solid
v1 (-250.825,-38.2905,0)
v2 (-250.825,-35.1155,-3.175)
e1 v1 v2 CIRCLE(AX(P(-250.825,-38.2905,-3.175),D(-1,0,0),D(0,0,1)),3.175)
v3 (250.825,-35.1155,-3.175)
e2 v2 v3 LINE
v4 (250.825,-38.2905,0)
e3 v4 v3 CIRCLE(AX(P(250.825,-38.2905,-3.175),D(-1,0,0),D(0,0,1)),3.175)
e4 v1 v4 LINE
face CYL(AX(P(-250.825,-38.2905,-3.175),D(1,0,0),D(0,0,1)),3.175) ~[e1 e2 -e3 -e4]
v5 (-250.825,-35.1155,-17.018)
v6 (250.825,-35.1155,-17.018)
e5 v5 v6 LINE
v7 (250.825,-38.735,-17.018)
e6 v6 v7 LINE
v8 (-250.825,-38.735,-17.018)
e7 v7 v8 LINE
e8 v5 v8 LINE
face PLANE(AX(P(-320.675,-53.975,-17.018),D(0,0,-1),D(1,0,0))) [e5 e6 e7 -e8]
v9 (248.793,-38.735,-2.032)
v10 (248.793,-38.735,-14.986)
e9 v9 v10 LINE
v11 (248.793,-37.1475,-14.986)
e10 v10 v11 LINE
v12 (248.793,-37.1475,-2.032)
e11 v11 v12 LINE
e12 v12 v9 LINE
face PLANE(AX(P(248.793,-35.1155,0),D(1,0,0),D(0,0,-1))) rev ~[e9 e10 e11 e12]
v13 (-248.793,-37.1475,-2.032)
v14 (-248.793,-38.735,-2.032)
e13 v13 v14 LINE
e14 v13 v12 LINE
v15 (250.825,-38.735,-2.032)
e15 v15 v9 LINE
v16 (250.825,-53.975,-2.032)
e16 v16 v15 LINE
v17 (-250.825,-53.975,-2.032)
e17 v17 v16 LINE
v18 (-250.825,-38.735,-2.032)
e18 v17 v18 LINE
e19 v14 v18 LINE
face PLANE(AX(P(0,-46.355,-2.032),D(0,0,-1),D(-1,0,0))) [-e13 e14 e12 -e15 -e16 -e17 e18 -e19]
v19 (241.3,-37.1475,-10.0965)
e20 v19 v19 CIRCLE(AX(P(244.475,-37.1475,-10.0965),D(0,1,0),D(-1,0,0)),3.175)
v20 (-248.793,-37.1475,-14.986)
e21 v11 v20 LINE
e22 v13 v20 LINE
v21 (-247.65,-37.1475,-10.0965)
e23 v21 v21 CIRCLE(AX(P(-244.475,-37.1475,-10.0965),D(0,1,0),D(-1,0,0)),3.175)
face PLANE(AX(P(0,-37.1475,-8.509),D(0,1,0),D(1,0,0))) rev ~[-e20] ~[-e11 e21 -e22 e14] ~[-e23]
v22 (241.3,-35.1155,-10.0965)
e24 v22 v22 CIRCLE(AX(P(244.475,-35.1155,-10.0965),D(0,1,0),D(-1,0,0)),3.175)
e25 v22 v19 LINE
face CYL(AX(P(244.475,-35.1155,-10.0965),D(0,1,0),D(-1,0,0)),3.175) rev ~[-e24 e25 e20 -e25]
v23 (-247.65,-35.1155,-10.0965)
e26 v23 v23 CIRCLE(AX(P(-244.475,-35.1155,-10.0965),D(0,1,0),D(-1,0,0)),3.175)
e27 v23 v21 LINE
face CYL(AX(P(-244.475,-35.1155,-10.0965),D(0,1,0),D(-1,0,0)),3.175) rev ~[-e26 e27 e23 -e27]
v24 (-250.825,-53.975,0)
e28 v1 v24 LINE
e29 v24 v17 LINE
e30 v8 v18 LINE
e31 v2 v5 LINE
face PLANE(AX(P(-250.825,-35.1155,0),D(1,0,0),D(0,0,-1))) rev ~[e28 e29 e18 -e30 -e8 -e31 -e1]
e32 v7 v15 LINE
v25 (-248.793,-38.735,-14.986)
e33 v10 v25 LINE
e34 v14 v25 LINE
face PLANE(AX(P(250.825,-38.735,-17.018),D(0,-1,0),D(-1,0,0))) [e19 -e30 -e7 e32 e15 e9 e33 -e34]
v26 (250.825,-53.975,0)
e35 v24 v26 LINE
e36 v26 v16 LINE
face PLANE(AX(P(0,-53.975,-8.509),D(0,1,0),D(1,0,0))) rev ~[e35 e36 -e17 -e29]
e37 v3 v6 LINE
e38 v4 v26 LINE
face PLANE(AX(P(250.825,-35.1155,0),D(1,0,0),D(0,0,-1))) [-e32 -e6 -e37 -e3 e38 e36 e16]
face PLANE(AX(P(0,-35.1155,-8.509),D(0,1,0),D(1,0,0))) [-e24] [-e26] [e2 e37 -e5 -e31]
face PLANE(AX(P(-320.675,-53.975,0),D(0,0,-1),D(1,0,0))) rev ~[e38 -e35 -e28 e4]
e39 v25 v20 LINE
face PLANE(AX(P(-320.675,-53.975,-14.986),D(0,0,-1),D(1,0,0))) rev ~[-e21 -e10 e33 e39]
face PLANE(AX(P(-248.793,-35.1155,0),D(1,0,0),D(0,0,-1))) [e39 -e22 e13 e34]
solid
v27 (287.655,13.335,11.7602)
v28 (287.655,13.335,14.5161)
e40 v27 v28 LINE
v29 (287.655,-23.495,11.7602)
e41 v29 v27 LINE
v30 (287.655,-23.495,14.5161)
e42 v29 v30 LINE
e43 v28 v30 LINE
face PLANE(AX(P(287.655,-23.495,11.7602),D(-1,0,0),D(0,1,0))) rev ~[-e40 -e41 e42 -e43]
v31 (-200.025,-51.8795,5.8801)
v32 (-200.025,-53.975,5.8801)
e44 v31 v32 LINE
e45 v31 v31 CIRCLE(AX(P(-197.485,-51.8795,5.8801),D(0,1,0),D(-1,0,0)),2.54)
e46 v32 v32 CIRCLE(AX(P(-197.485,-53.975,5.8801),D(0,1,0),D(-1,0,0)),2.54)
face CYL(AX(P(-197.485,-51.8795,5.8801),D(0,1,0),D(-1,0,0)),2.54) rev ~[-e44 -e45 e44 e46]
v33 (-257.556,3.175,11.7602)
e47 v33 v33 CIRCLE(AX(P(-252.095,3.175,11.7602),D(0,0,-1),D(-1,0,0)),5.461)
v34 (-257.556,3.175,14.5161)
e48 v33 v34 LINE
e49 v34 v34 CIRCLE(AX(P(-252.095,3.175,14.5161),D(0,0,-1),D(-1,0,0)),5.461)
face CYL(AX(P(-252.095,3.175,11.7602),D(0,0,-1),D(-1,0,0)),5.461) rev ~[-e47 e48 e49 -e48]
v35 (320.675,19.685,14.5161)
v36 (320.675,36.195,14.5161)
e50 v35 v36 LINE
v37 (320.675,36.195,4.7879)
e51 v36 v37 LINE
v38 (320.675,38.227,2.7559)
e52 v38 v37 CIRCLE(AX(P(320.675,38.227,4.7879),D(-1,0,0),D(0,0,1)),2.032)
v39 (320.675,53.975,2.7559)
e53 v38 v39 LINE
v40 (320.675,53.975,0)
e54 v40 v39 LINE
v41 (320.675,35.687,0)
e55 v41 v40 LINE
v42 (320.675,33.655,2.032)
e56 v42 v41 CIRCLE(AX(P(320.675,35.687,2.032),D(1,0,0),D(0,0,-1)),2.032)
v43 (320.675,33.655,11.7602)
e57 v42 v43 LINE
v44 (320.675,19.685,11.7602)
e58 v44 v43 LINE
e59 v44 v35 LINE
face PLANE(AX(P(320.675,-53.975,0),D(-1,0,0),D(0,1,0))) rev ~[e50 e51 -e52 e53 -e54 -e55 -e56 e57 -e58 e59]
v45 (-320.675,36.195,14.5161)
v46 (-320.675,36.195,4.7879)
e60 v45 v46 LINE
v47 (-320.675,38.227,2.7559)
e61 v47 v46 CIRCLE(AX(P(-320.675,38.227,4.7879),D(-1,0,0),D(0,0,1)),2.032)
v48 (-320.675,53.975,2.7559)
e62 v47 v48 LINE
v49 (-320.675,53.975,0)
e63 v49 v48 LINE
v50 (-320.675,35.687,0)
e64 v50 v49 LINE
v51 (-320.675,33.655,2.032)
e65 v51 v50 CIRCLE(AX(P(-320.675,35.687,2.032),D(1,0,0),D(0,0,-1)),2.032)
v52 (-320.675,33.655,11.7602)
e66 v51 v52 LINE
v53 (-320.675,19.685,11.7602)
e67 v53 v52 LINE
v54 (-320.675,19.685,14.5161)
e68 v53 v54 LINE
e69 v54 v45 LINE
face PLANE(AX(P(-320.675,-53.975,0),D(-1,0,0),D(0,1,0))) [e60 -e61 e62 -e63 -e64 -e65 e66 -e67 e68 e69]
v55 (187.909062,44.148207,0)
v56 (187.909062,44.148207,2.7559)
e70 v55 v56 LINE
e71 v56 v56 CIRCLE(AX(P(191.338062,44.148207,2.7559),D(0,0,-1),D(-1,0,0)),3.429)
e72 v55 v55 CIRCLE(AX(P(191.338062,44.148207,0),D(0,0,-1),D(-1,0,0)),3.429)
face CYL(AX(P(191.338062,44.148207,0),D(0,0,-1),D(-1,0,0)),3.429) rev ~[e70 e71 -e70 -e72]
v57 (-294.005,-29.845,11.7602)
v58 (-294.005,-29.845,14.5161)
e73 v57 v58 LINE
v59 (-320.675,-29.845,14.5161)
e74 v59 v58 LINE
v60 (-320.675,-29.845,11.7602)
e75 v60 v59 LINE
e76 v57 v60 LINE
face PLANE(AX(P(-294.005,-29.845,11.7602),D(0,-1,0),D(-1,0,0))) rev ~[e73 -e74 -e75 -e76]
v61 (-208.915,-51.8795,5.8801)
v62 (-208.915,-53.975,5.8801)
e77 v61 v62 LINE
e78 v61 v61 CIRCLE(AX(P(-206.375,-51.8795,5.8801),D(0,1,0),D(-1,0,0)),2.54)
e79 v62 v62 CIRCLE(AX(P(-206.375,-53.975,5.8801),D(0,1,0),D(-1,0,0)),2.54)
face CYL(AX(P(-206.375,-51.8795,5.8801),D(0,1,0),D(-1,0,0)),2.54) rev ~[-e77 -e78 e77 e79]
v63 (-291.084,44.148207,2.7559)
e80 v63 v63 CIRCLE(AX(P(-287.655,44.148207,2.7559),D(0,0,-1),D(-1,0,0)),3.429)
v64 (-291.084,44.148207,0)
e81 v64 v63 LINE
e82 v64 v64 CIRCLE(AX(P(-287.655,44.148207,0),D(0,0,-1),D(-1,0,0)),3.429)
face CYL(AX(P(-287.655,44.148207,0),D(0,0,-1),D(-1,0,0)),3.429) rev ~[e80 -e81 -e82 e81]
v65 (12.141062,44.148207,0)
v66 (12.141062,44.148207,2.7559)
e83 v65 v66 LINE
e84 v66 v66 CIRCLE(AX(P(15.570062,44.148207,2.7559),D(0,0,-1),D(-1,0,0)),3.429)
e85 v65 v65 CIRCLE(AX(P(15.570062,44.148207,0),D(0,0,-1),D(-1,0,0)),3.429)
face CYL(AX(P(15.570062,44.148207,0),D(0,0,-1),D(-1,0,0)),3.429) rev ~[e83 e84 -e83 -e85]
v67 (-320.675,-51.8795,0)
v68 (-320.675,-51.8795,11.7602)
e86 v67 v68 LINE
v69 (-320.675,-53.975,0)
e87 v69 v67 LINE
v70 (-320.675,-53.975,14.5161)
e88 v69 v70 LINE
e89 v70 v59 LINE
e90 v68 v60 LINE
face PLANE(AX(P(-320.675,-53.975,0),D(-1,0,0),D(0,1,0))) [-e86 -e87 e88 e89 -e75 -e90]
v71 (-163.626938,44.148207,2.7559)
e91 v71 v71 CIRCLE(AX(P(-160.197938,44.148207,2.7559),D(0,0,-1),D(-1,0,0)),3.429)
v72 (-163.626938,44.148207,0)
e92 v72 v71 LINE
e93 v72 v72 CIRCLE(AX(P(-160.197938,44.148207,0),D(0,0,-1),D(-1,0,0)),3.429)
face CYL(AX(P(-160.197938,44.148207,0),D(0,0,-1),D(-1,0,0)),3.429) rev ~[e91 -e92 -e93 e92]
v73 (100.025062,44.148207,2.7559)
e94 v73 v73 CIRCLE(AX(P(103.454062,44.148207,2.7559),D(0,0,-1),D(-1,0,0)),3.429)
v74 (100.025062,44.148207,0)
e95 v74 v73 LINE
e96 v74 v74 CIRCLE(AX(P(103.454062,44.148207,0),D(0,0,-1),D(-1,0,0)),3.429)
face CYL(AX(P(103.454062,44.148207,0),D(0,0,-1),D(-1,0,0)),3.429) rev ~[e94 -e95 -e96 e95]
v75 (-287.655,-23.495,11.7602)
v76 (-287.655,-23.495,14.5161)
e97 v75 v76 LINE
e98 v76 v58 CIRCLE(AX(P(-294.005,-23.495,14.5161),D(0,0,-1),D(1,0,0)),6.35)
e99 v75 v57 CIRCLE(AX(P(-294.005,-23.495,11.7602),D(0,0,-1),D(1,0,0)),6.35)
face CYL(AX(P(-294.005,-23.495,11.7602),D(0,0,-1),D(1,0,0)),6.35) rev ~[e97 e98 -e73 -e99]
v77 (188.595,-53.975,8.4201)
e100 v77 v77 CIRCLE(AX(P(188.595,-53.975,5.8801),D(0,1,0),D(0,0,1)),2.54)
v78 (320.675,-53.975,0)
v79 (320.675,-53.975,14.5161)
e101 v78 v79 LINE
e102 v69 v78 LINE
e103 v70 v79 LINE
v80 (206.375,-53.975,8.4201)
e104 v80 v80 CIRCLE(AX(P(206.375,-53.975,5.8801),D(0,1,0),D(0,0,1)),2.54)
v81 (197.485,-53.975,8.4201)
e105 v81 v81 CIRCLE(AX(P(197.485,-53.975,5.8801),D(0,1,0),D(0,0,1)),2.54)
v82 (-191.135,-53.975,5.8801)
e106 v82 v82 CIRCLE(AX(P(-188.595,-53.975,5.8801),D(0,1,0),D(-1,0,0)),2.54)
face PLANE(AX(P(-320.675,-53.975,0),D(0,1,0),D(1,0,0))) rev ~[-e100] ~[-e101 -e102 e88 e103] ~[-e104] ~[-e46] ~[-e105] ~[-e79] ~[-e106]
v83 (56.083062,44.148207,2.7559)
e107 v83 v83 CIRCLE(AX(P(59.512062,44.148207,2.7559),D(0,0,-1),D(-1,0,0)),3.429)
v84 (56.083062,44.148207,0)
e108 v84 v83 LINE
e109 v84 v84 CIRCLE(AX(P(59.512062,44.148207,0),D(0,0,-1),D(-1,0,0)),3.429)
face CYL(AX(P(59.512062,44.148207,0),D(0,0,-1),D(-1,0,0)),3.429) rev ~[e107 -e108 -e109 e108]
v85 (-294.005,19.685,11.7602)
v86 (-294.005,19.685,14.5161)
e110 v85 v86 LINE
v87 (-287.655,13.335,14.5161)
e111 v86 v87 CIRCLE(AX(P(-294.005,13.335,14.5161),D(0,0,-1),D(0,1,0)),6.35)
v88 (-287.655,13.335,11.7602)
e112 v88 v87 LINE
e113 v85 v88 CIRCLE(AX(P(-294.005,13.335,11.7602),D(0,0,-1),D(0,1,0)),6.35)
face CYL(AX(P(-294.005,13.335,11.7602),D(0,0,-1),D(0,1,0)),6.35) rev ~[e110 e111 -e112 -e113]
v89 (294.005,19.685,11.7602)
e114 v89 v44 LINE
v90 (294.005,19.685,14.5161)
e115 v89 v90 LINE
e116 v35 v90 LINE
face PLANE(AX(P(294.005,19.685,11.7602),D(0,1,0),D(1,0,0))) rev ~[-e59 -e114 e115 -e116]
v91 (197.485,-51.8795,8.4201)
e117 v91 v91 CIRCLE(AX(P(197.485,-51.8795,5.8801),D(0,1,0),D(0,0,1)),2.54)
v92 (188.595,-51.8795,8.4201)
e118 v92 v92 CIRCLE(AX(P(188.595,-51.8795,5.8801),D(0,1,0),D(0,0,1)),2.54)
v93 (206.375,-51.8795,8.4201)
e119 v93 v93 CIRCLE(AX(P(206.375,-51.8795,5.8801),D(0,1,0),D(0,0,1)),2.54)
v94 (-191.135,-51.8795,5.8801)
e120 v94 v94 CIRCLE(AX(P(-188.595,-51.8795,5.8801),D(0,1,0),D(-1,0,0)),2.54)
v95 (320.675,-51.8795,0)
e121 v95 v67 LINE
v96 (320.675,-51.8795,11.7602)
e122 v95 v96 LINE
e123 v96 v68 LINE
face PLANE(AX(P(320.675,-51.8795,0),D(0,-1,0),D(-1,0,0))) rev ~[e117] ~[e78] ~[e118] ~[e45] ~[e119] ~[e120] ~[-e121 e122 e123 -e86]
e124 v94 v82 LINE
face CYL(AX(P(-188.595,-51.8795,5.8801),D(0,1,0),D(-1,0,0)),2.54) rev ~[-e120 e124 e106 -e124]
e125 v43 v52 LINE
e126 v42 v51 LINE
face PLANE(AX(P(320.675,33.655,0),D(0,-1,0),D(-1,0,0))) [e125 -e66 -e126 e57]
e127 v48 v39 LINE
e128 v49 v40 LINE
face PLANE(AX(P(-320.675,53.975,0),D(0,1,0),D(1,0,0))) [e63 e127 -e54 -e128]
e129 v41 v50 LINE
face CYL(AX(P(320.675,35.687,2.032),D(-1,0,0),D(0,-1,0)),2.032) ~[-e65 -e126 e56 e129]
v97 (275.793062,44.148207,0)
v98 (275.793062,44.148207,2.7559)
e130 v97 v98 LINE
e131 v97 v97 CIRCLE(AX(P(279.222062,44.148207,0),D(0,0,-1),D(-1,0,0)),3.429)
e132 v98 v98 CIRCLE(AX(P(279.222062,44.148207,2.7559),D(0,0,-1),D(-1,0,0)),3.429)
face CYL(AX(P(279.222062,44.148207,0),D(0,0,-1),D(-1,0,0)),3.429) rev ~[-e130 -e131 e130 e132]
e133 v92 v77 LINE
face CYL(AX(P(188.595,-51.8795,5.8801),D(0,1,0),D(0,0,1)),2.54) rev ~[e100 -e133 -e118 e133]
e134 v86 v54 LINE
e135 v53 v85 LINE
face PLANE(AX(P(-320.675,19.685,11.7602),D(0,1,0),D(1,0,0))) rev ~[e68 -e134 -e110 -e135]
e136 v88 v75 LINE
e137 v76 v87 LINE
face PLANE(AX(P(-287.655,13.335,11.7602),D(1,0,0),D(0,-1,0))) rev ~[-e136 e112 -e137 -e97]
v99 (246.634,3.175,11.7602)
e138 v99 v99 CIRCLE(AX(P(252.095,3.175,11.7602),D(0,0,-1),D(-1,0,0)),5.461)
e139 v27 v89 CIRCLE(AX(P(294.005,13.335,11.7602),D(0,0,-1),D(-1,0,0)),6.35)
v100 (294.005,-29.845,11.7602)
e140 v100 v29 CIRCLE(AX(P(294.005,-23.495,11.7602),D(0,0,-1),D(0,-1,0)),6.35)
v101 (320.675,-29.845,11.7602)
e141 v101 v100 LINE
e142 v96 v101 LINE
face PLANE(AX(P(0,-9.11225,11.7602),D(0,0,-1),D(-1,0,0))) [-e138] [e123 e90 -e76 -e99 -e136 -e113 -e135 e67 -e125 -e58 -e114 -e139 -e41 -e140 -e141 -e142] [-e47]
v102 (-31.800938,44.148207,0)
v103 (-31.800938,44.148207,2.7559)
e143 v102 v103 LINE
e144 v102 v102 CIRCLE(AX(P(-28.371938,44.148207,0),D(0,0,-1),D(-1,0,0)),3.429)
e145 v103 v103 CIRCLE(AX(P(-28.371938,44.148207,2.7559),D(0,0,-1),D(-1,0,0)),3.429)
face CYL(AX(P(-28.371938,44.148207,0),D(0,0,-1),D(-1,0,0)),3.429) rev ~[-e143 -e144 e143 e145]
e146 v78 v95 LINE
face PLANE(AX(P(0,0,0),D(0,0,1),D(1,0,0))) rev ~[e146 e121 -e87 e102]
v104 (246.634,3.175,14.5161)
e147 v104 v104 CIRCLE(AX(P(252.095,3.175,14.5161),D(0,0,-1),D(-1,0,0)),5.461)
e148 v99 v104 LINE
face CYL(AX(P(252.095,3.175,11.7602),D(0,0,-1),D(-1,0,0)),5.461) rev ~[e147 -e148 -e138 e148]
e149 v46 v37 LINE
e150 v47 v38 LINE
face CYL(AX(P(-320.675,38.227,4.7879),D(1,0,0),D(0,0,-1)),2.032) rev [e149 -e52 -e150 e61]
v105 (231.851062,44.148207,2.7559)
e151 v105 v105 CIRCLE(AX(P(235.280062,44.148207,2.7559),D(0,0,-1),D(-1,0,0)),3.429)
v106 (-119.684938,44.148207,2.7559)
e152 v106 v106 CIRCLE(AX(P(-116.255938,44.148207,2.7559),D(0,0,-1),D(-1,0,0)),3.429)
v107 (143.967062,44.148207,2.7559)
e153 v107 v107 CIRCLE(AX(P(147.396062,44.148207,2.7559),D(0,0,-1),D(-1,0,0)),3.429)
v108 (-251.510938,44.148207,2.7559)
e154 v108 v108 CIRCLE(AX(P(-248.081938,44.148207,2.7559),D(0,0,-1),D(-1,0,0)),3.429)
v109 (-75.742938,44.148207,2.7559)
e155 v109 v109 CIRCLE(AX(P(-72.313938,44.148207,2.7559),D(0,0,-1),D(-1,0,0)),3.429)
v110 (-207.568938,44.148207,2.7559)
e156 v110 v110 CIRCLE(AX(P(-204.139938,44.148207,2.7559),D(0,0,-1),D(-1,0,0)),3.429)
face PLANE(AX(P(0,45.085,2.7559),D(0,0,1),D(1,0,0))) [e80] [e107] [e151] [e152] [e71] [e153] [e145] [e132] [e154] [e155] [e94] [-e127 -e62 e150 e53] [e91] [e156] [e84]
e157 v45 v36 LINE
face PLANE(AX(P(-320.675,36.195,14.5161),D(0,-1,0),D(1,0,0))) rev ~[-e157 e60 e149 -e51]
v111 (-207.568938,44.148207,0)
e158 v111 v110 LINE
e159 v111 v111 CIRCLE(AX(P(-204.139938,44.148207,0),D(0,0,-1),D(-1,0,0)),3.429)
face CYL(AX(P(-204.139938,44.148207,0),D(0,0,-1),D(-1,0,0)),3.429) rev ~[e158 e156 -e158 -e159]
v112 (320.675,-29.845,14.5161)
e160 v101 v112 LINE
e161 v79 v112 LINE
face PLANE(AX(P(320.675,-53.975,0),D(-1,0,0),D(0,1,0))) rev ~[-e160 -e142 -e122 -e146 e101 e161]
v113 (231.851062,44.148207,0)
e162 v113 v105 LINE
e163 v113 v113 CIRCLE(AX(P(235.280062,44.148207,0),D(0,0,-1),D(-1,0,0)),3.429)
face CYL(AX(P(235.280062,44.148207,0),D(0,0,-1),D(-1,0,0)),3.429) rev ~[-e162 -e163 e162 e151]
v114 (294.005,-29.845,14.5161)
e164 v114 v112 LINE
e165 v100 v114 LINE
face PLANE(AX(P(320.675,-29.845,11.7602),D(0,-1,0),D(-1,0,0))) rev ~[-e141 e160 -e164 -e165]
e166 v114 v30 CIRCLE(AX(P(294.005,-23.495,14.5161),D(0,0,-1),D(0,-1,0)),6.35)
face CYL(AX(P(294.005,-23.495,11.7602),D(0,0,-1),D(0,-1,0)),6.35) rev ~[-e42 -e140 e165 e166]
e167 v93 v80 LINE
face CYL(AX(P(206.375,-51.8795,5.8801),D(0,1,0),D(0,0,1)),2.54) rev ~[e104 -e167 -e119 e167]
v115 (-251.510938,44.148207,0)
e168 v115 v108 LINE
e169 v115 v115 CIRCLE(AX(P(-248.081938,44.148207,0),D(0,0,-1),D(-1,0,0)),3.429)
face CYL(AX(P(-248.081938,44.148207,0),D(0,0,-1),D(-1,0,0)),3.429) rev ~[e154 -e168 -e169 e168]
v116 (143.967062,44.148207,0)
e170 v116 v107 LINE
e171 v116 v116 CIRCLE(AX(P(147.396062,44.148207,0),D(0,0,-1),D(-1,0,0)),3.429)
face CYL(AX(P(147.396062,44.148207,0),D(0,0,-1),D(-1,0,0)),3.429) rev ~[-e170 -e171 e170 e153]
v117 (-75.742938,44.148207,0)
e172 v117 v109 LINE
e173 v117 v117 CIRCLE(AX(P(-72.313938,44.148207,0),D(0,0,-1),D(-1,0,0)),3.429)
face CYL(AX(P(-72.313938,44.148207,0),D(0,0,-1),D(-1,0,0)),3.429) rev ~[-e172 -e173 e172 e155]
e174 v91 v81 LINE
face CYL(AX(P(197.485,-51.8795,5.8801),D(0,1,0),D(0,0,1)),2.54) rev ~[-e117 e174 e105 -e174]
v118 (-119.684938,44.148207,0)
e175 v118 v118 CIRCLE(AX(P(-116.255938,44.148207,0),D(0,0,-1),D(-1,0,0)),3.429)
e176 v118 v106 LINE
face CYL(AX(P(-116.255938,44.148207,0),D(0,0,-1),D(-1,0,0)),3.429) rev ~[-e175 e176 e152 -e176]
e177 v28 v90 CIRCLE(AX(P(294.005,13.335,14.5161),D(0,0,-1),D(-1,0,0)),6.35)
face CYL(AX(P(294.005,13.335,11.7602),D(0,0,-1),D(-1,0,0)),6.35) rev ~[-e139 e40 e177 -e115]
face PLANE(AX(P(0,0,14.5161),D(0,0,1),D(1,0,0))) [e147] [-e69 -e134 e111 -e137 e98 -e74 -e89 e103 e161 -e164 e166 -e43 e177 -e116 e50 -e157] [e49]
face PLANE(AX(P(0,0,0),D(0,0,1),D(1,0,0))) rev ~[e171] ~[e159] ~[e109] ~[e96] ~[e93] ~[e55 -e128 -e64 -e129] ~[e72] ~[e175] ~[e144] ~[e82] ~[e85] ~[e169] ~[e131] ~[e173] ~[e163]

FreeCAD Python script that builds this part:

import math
import FreeCAD as App
import Part
import Sketcher
from FreeCAD import Vector
Q = App.Units.Quantity


def edges_at(feature, points):
    """Names of the edges that pass closest to the given points."""
    edges = feature.Shape.Edges
    near = lambda p: min(range(len(edges)), key=lambda i: edges[i].distToShape(Part.Vertex(*p))[0])
    return sorted({f"Edge{near(p) + 1}" for p in points})


def faces_at(feature, points):
    """Names of the faces that lie closest to the given points."""
    faces = feature.Shape.Faces
    near = lambda p: min(range(len(faces)), key=lambda i: faces[i].distToShape(Part.Vertex(*p))[0])
    return sorted({f"Face{near(p) + 1}" for p in points})


def add_polygon(sketch, points):
    """Adds a closed chain of lines whose ends are joined by coincident constraints."""
    first, n = sketch.GeometryCount, len(points)
    for a, b in zip(points, points[1:] + points[:1]):
        sketch.addGeometry(Part.LineSegment(App.Vector(*a, 0), App.Vector(*b, 0)), False)
    for i in range(n):
        sketch.addConstraint(Sketcher.Constraint("Coincident", first + i, 2, first + (i + 1) % n, 1))

doc = App.newDocument("Part")
params = doc.addObject("Spreadsheet::Sheet", "Params")
for row, (alias, value) in enumerate([
    ("sketch1_width", "25.25 in"),
    ("sketch1_height", "4.25 in"),
    ("pad1_length", "0.5715 in"),
    ("sketch2_height", "0.7 in"),
    ("sketch2_width", "25.25 in"),
    ("pocket1_length", "0.463 in"),
    ("sketch3_width", "25.25 in"),
    ("pocket2_length", "0.463 in"),
    ("fillet_radius", "0.08 in"),
    ("sketch4_radius", "0.25 in"),
    ("sketch4_width", "1.05 in"),
    ("sketch4_height", "1.95 in"),
    ("sketch5_diameter", "0.27 in"),
    ("pocket4_length", "0.463 in"),
    ("sketch6_diameter", "0.43 in"),
    ("pocket5_length", "0.463 in"),
    ("sketch7_diameter", "0.2 in"),
    ("pocket6_length", "0.1 in"),
    ("sketch8_width", "25.25 in"),
    ("sketch8_height", "0.67 in"),
    ("pad2_length", "0.66 in"),
    ("pad2_length2", "0.0825 in"),
    ("sketch9_width", "2.75 in"),
    ("sketch9_height", "0.67 in"),
    ("thickness_wall", "0.08 in"),
    ("sketch10_height", "0.6 in"),
    ("sketch10_width", "19.75 in"),
    ("pocket8_length", "0.59 in"),
    ("fillet2_radius", "0.125 in"),
    ("sketch11_diameter", "0.25 in"),
    ("pocket9_length", "0.66 in"),
], start=1):
    params.set(f"A{row}", alias)
    params.set(f"B{row}", "=" + value)
    params.setAlias(f"B{row}", alias)

body = doc.addObject("PartDesign::Body", "Body")

# Sketch on XY plane
sketch1 = body.newObject("Sketcher::SketchObject", "Sketch")
sketch1.AttachmentSupport = (doc.getObject("XY_Plane"), [""])
sketch1.MapMode = "FlatFace"
add_polygon(sketch1, [(-320.675, 53.975), (-320.675, -53.975), (320.675, -53.975), (320.675, 53.975)])  # lines 0-3
sketch1.addConstraint(Sketcher.Constraint("Vertical", 0))
sketch1.addConstraint(Sketcher.Constraint("Horizontal", 1))
sketch1.addConstraint(Sketcher.Constraint("Vertical", 2))
sketch1.addConstraint(Sketcher.Constraint("Horizontal", 3))
sketch1.addConstraint(Sketcher.Constraint("Symmetric", 0, 2, 2, 2, -1, 1))
sketch1.addConstraint(Sketcher.Constraint("DistanceX", 1, 1, 1, 2, Q("25.25 in")))
sketch1.addConstraint(Sketcher.Constraint("DistanceY", 0, 2, 0, 1, Q("4.25 in")))
sketch1.setExpression("Constraints[9]", "Params.sketch1_width")
sketch1.setExpression("Constraints[10]", "Params.sketch1_height")
pad1 = body.newObject("PartDesign::Pad", "Pad")
pad1.Profile = sketch1
pad1.setExpression("Length", "Params.pad1_length")

# Sketch on XY plane
sketch2 = body.newObject("Sketcher::SketchObject", "Sketch001")
sketch2.AttachmentSupport = (doc.getObject("XY_Plane"), [""])
sketch2.MapMode = "FlatFace"
sketch2.AttachmentOffset = App.Placement(Vector(0, 0, 0.5715 * 25.4), App.Rotation())
add_polygon(sketch2, [(-320.675, 53.975), (-320.675, 36.195), (320.675, 36.195), (320.675, 53.975)])  # lines 0-3
sketch2.addConstraint(Sketcher.Constraint("Vertical", 0))
sketch2.addConstraint(Sketcher.Constraint("Horizontal", 1))
sketch2.addConstraint(Sketcher.Constraint("Vertical", 2))
sketch2.addConstraint(Sketcher.Constraint("Horizontal", 3))
sketch2.addConstraint(Sketcher.Constraint("DistanceY", 0, 2, 0, 1, Q("0.7 in")))
sketch2.addConstraint(Sketcher.Constraint("DistanceX", 1, 1, 1, 2, Q("25.25 in")))
sketch2.addConstraint(Sketcher.Constraint("DistanceX", 0, 2, -1, 1, Q("12.625 in")))
sketch2.addConstraint(Sketcher.Constraint("DistanceY", -1, 1, 0, 2, Q("1.425 in")))
sketch2.setExpression("Constraints[8]", "Params.sketch2_height")
sketch2.setExpression("Constraints[9]", "Params.sketch2_width")
pocket1 = body.newObject("PartDesign::Pocket", "Pocket")
pocket1.Profile = sketch2
pocket1.setExpression("Length", "Params.pocket1_length")

# Sketch on XY plane
sketch3 = body.newObject("Sketcher::SketchObject", "Sketch002")
sketch3.AttachmentSupport = (doc.getObject("XY_Plane"), [""])
sketch3.MapMode = "FlatFace"
add_polygon(sketch3, [(320.675, 33.655), (320.675, -51.8795), (-320.675, -51.8795), (-320.675, 33.655)])  # lines 0-3
sketch3.addConstraint(Sketcher.Constraint("Vertical", 0))
sketch3.addConstraint(Sketcher.Constraint("Horizontal", 1))
sketch3.addConstraint(Sketcher.Constraint("Vertical", 2))
sketch3.addConstraint(Sketcher.Constraint("Horizontal", 3))
sketch3.addConstraint(Sketcher.Constraint("DistanceX", 1, 2, 1, 1, Q("25.25 in")))
sketch3.addConstraint(Sketcher.Constraint("DistanceY", 0, 2, 0, 1, Q("3.3675 in")))
sketch3.addConstraint(Sketcher.Constraint("DistanceX", -1, 1, 0, 2, Q("12.625 in")))
sketch3.addConstraint(Sketcher.Constraint("DistanceY", -1, 1, 2, 2, Q("1.325 in")))
sketch3.setExpression("Constraints[8]", "Params.sketch3_width")
pocket2 = body.newObject("PartDesign::Pocket", "Pocket001")
pocket2.Profile = sketch3
pocket2.setExpression("Length", "Params.pocket2_length")
pocket2.Reversed = True
doc.recompute()

fillet = body.newObject("PartDesign::Fillet", "Fillet")
fillet.Base = (pocket2, edges_at(pocket2, [(0, 36.195, 2.756), (0, 33.655, 0)]))
fillet.setExpression("Radius", "Params.fillet_radius")

# Sketch on XY plane
sketch4 = body.newObject("Sketcher::SketchObject", "Sketch003")
sketch4.AttachmentSupport = (doc.getObject("XY_Plane"), [""])
sketch4.MapMode = "FlatFace"
sketch4.AttachmentOffset = App.Placement(Vector(0, 0, 0.463 * 25.4), App.Rotation())
sketch4.addGeometry(Part.LineSegment(Vector(294.005, 19.685, 0), Vector(320.675, 19.685, 0)), False)
sketch4.addGeometry(Part.LineSegment(Vector(320.675, 19.685, 0), Vector(320.675, -29.845, 0)), False)
sketch4.addGeometry(Part.LineSegment(Vector(320.675, -29.845, 0), Vector(294.005, -29.845, 0)), False)
sketch4.addGeometry(Part.ArcOfCircle(Part.Circle(Vector(294.005, -23.495, 0), Vector(0, 0, 1), 6.35), math.radians(180), math.radians(270)), False)
sketch4.addGeometry(Part.LineSegment(Vector(287.655, -23.495, 0), Vector(287.655, 13.335, 0)), False)
sketch4.addGeometry(Part.ArcOfCircle(Part.Circle(Vector(294.005, 13.335, 0), Vector(0, 0, 1), 6.35), math.radians(90), math.radians(180)), False)
sketch4.addGeometry(Part.LineSegment(Vector(-294.005, -29.845, 0), Vector(-320.675, -29.845, 0)), False)
sketch4.addGeometry(Part.LineSegment(Vector(-320.675, -29.845, 0), Vector(-320.675, 19.685, 0)), False)
sketch4.addGeometry(Part.LineSegment(Vector(-320.675, 19.685, 0), Vector(-294.005, 19.685, 0)), False)
sketch4.addGeometry(Part.ArcOfCircle(Part.Circle(Vector(-294.005, 13.335, 0), Vector(0, 0, 1), 6.35), math.radians(0), math.radians(90)), False)
sketch4.addGeometry(Part.LineSegment(Vector(-287.655, 13.335, 0), Vector(-287.655, -23.495, 0)), False)
sketch4.addGeometry(Part.ArcOfCircle(Part.Circle(Vector(-294.005, -23.495, 0), Vector(0, 0, 1), 6.35), math.radians(-90), math.radians(0)), False)
sketch4.addConstraint(Sketcher.Constraint("Coincident", 0, 2, 1, 1))
sketch4.addConstraint(Sketcher.Constraint("Coincident", 1, 2, 2, 1))
sketch4.addConstraint(Sketcher.Constraint("Tangent", 2, 2, 3, 2))
sketch4.addConstraint(Sketcher.Constraint("Tangent", 3, 1, 4, 1))
sketch4.addConstraint(Sketcher.Constraint("Tangent", 4, 2, 5, 2))
sketch4.addConstraint(Sketcher.Constraint("Tangent", 5, 1, 0, 1))
sketch4.addConstraint(Sketcher.Constraint("Coincident", 6, 2, 7, 1))
sketch4.addConstraint(Sketcher.Constraint("Coincident", 7, 2, 8, 1))
sketch4.addConstraint(Sketcher.Constraint("Tangent", 8, 2, 9, 2))
sketch4.addConstraint(Sketcher.Constraint("Tangent", 9, 1, 10, 1))
sketch4.addConstraint(Sketcher.Constraint("Tangent", 10, 2, 11, 2))
sketch4.addConstraint(Sketcher.Constraint("Tangent", 11, 1, 6, 1))
sketch4.addConstraint(Sketcher.Constraint("Horizontal", 0))
sketch4.addConstraint(Sketcher.Constraint("Vertical", 1))
sketch4.addConstraint(Sketcher.Constraint("Horizontal", 2))
sketch4.addConstraint(Sketcher.Constraint("Vertical", 4))
sketch4.addConstraint(Sketcher.Constraint("Horizontal", 6))
sketch4.addConstraint(Sketcher.Constraint("Vertical", 7))
sketch4.addConstraint(Sketcher.Constraint("Horizontal", 8))
sketch4.addConstraint(Sketcher.Constraint("Vertical", 10))
sketch4.addConstraint(Sketcher.Constraint("Equal", 3, 5))
sketch4.addConstraint(Sketcher.Constraint("Equal", 5, 9))
sketch4.addConstraint(Sketcher.Constraint("Equal", 9, 11))
sketch4.addConstraint(Sketcher.Constraint("Symmetric", 5, 3, 9, 3, -2))
sketch4.addConstraint(Sketcher.Constraint("Symmetric", 1, 2, 6, 2, -2))
sketch4.addConstraint(Sketcher.Constraint("Radius", 3, Q("0.25 in")))
sketch4.addConstraint(Sketcher.Constraint("DistanceX", 0, 1, 0, 2, Q("1.05 in")))
sketch4.addConstraint(Sketcher.Constraint("DistanceY", 1, 2, 1, 1, Q("1.95 in")))
sketch4.addConstraint(Sketcher.Constraint("DistanceX", 9, 3, 0, 2, Q("24.2 in")))
sketch4.addConstraint(Sketcher.Constraint("DistanceY", 3, 3, -1, 1, Q("0.925 in")))
sketch4.setExpression("Constraints[25]", "Params.sketch4_radius")
sketch4.setExpression("Constraints[26]", "Params.sketch4_width")
sketch4.setExpression("Constraints[27]", "Params.sketch4_height")
pocket3 = body.newObject("PartDesign::Pocket", "Pocket002")
pocket3.Profile = sketch4
pocket3.Type = "ThroughAll"
pocket3.Reversed = True

# Sketch on XY plane
sketch5 = body.newObject("Sketcher::SketchObject", "Sketch004")
sketch5.AttachmentSupport = (doc.getObject("XY_Plane"), [""])
sketch5.MapMode = "FlatFace"
sketch5.addGeometry(Part.Circle(Vector(279.222062, 44.148207, 0), Vector(0, 0, 1), 3.429), False)
sketch5.addGeometry(Part.Circle(Vector(235.280062, 44.148207, 0), Vector(0, 0, 1), 3.429), False)
sketch5.addGeometry(Part.Circle(Vector(191.338062, 44.148207, 0), Vector(0, 0, 1), 3.429), False)
sketch5.addGeometry(Part.Circle(Vector(147.396062, 44.148207, 0), Vector(0, 0, 1), 3.429), False)
sketch5.addGeometry(Part.Circle(Vector(103.454062, 44.148207, 0), Vector(0, 0, 1), 3.429), False)
sketch5.addGeometry(Part.Circle(Vector(59.512062, 44.148207, 0), Vector(0, 0, 1), 3.429), False)
sketch5.addGeometry(Part.Circle(Vector(15.570062, 44.148207, 0), Vector(0, 0, 1), 3.429), False)
sketch5.addGeometry(Part.Circle(Vector(-28.371938, 44.148207, 0), Vector(0, 0, 1), 3.429), False)
sketch5.addGeometry(Part.Circle(Vector(-72.313938, 44.148207, 0), Vector(0, 0, 1), 3.429), False)
sketch5.addGeometry(Part.Circle(Vector(-116.255938, 44.148207, 0), Vector(0, 0, 1), 3.429), False)
sketch5.addGeometry(Part.Circle(Vector(-160.197938, 44.148207, 0), Vector(0, 0, 1), 3.429), False)
sketch5.addGeometry(Part.Circle(Vector(-204.139938, 44.148207, 0), Vector(0, 0, 1), 3.429), False)
sketch5.addGeometry(Part.Circle(Vector(-248.081938, 44.148207, 0), Vector(0, 0, 1), 3.429), False)
sketch5.addGeometry(Part.Circle(Vector(-287.655, 44.148207, 0), Vector(0, 0, 1), 3.429), False)
sketch5.addConstraint(Sketcher.Constraint("Equal", 0, 1))
sketch5.addConstraint(Sketcher.Constraint("Equal", 1, 2))
sketch5.addConstraint(Sketcher.Constraint("Equal", 2, 3))
sketch5.addConstraint(Sketcher.Constraint("Equal", 3, 4))
sketch5.addConstraint(Sketcher.Constraint("Equal", 4, 5))
sketch5.addConstraint(Sketcher.Constraint("Equal", 5, 6))
sketch5.addConstraint(Sketcher.Constraint("Equal", 6, 7))
sketch5.addConstraint(Sketcher.Constraint("Equal", 7, 8))
sketch5.addConstraint(Sketcher.Constraint("Equal", 8, 9))
sketch5.addConstraint(Sketcher.Constraint("Equal", 9, 10))
sketch5.addConstraint(Sketcher.Constraint("Equal", 10, 11))
sketch5.addConstraint(Sketcher.Constraint("Equal", 11, 12))
sketch5.addConstraint(Sketcher.Constraint("Equal", 12, 13))
sketch5.addConstraint(Sketcher.Constraint("Horizontal", 0, 3, 1, 3))
sketch5.addConstraint(Sketcher.Constraint("Horizontal", 1, 3, 2, 3))
sketch5.addConstraint(Sketcher.Constraint("Horizontal", 2, 3, 3, 3))
sketch5.addConstraint(Sketcher.Constraint("Horizontal", 3, 3, 4, 3))
sketch5.addConstraint(Sketcher.Constraint("Horizontal", 4, 3, 5, 3))
sketch5.addConstraint(Sketcher.Constraint("Horizontal", 5, 3, 6, 3))
sketch5.addConstraint(Sketcher.Constraint("Horizontal", 6, 3, 7, 3))
sketch5.addConstraint(Sketcher.Constraint("Horizontal", 7, 3, 8, 3))
sketch5.addConstraint(Sketcher.Constraint("Horizontal", 8, 3, 9, 3))
sketch5.addConstraint(Sketcher.Constraint("Horizontal", 9, 3, 10, 3))
sketch5.addConstraint(Sketcher.Constraint("Horizontal", 10, 3, 11, 3))
sketch5.addConstraint(Sketcher.Constraint("Horizontal", 11, 3, 12, 3))
sketch5.addConstraint(Sketcher.Constraint("Horizontal", 12, 3, 13, 3))
sketch5.addConstraint(Sketcher.Constraint("Diameter", 0, Q("0.27 in")))
sketch5.addConstraint(Sketcher.Constraint("DistanceX", 1, 3, 0, 3, Q("1.73 in")))
sketch5.addConstraint(Sketcher.Constraint("DistanceX", 2, 3, 1, 3, Q("1.73 in")))
sketch5.addConstraint(Sketcher.Constraint("DistanceX", 3, 3, 2, 3, Q("1.73 in")))
sketch5.addConstraint(Sketcher.Constraint("DistanceX", 4, 3, 3, 3, Q("1.73 in")))
sketch5.addConstraint(Sketcher.Constraint("DistanceX", 5, 3, 4, 3, Q("1.73 in")))
sketch5.addConstraint(Sketcher.Constraint("DistanceX", 6, 3, 5, 3, Q("1.73 in")))
sketch5.addConstraint(Sketcher.Constraint("DistanceX", 7, 3, 6, 3, Q("1.73 in")))
sketch5.addConstraint(Sketcher.Constraint("DistanceX", 8, 3, 7, 3, Q("1.73 in")))
sketch5.addConstraint(Sketcher.Constraint("DistanceX", 9, 3, 8, 3, Q("1.73 in")))
sketch5.addConstraint(Sketcher.Constraint("DistanceX", 10, 3, 9, 3, Q("1.73 in")))
sketch5.addConstraint(Sketcher.Constraint("DistanceX", 11, 3, 10, 3, Q("1.73 in")))
sketch5.addConstraint(Sketcher.Constraint("DistanceX", 12, 3, 11, 3, Q("1.73 in")))
sketch5.addConstraint(Sketcher.Constraint("DistanceX", 13, 3, -1, 1, Q("11.325 in")))
sketch5.addConstraint(Sketcher.Constraint("DistanceX", -1, 1, 0, 3, 279.222062))
sketch5.addConstraint(Sketcher.Constraint("DistanceY", -1, 1, 0, 3, 44.148207))
sketch5.setExpression("Constraints[26]", "Params.sketch5_diameter")
pocket4 = body.newObject("PartDesign::Pocket", "Pocket003")
pocket4.Profile = sketch5
pocket4.setExpression("Length", "Params.pocket4_length")
pocket4.Reversed = True

# Sketch on XY plane
sketch6 = body.newObject("Sketcher::SketchObject", "Sketch005")
sketch6.AttachmentSupport = (doc.getObject("XY_Plane"), [""])
sketch6.MapMode = "FlatFace"
sketch6.AttachmentOffset = App.Placement(Vector(0, 0, 0.463 * 25.4), App.Rotation())
sketch6.addGeometry(Part.Circle(Vector(252.095, 3.175, 0), Vector(0, 0, 1), 5.461), False)
sketch6.addGeometry(Part.Circle(Vector(-252.095, 3.175, 0), Vector(0, 0, 1), 5.461), False)
sketch6.addConstraint(Sketcher.Constraint("Equal", 0, 1))
sketch6.addConstraint(Sketcher.Constraint("Symmetric", 0, 3, 1, 3, -2))
sketch6.addConstraint(Sketcher.Constraint("Diameter", 0, Q("0.43 in")))
sketch6.addConstraint(Sketcher.Constraint("DistanceX", 1, 3, 0, 3, Q("19.85 in")))
sketch6.addConstraint(Sketcher.Constraint("DistanceY", -1, 1, 0, 3, Q("0.125 in")))
sketch6.setExpression("Constraints[2]", "Params.sketch6_diameter")
pocket5 = body.newObject("PartDesign::Pocket", "Pocket004")
pocket5.Profile = sketch6
pocket5.setExpression("Length", "Params.pocket5_length")
pocket5.Reversed = True

# Sketch on XZ plane
sketch7 = body.newObject("Sketcher::SketchObject", "Sketch006")
sketch7.AttachmentSupport = (doc.getObject("XZ_Plane"), [""])
sketch7.MapMode = "FlatFace"
sketch7.AttachmentOffset = App.Placement(Vector(0, 0, 2.0425 * 25.4), App.Rotation())
sketch7.addGeometry(Part.Circle(Vector(-206.375, 5.8801, 0), Vector(0, 0, 1), 2.54), False)
sketch7.addGeometry(Part.Circle(Vector(-197.485, 5.8801, 0), Vector(0, 0, 1), 2.54), False)
sketch7.addGeometry(Part.Circle(Vector(-188.595, 5.8801, 0), Vector(0, 0, 1), 2.54), False)
sketch7.addGeometry(Part.Circle(Vector(197.485, 5.8801, 0), Vector(0, 0, 1), 2.54), False)
sketch7.addGeometry(Part.Circle(Vector(188.595, 5.8801, 0), Vector(0, 0, 1), 2.54), False)
sketch7.addGeometry(Part.Circle(Vector(206.375, 5.8801, 0), Vector(0, 0, 1), 2.54), False)
sketch7.addConstraint(Sketcher.Constraint("Equal", 0, 1))
sketch7.addConstraint(Sketcher.Constraint("Equal", 1, 2))
sketch7.addConstraint(Sketcher.Constraint("Equal", 2, 3))
sketch7.addConstraint(Sketcher.Constraint("Equal", 3, 4))
sketch7.addConstraint(Sketcher.Constraint("Equal", 4, 5))
sketch7.addConstraint(Sketcher.Constraint("Symmetric", 1, 3, 3, 3, -2))
sketch7.addConstraint(Sketcher.Constraint("Symmetric", 2, 3, 4, 3, -2))
sketch7.addConstraint(Sketcher.Constraint("Symmetric", 0, 3, 5, 3, -2))
sketch7.addConstraint(Sketcher.Constraint("Horizontal", 0, 3, 1, 3))
sketch7.addConstraint(Sketcher.Constraint("Horizontal", 1, 3, 2, 3))
sketch7.addConstraint(Sketcher.Constraint("Diameter", 0, Q("0.2 in")))
sketch7.addConstraint(Sketcher.Constraint("DistanceX", 0, 3, 2, 3, Q("0.7 in")))
sketch7.addConstraint(Sketcher.Constraint("DistanceX", 2, 3, 3, 3, Q("15.2 in")))
sketch7.addConstraint(Sketcher.Constraint("DistanceX", 0, 3, 1, 3, Q("0.35 in")))
sketch7.addConstraint(Sketcher.Constraint("DistanceY", -1, 1, 0, 3, Q("0.2315 in")))
sketch7.setExpression("Constraints[10]", "Params.sketch7_diameter")
pocket6 = body.newObject("PartDesign::Pocket", "Pocket005")
pocket6.Profile = sketch7
pocket6.setExpression("Length", "Params.pocket6_length")
pocket6.Reversed = True
body2 = doc.addObject("PartDesign::Body", "Body001")

# Sketch on XZ plane
sketch8 = body2.newObject("Sketcher::SketchObject", "Sketch007")
sketch8.AttachmentSupport = (doc.getObject("XZ_Plane001"), [""])
sketch8.MapMode = "FlatFace"
sketch8.AttachmentOffset = App.Placement(Vector(0, 0, 2.0425 * 25.4), App.Rotation())
add_polygon(sketch8, [(-320.675, -17.018), (-320.675, 0), (320.675, 0), (320.675, -17.018)])  # lines 0-3
sketch8.addConstraint(Sketcher.Constraint("Vertical", 0))
sketch8.addConstraint(Sketcher.Constraint("Horizontal", 1))
sketch8.addConstraint(Sketcher.Constraint("Vertical", 2))
sketch8.addConstraint(Sketcher.Constraint("Horizontal", 3))
sketch8.addConstraint(Sketcher.Constraint("Symmetric", 0, 2, 1, 2, -1, 1))
sketch8.addConstraint(Sketcher.Constraint("DistanceX", 1, 1, 1, 2, Q("25.25 in")))
sketch8.addConstraint(Sketcher.Constraint("DistanceY", 0, 1, 0, 2, Q("0.67 in")))
sketch8.setExpression("Constraints[9]", "Params.sketch8_width")
sketch8.setExpression("Constraints[10]", "Params.sketch8_height")
pad2 = body2.newObject("PartDesign::Pad", "Pad001")
pad2.Profile = sketch8
pad2.Type = "TwoLengths"
pad2.setExpression("Length", "Params.pad2_length")
pad2.setExpression("Length2", "Params.pad2_length2")
pad2.Reversed = True

# Sketch on XZ plane
sketch9 = body2.newObject("Sketcher::SketchObject", "Sketch008")
sketch9.AttachmentSupport = (doc.getObject("XZ_Plane001"), [""])
sketch9.MapMode = "FlatFace"
sketch9.AttachmentOffset = App.Placement(Vector(0, 0, 1.3825 * 25.4), App.Rotation())
add_polygon(sketch9, [(250.825, -17.018), (250.825, 0), (320.675, 0), (320.675, -17.018)])  # lines 0-3
add_polygon(sketch9, [(-320.675, -17.018), (-320.675, 0), (-250.825, 0), (-250.825, -17.018)])  # lines 4-7
sketch9.addConstraint(Sketcher.Constraint("Vertical", 0))
sketch9.addConstraint(Sketcher.Constraint("Horizontal", 1))
sketch9.addConstraint(Sketcher.Constraint("Vertical", 2))
sketch9.addConstraint(Sketcher.Constraint("Horizontal", 3))
sketch9.addConstraint(Sketcher.Constraint("Vertical", 4))
sketch9.addConstraint(Sketcher.Constraint("Horizontal", 5))
sketch9.addConstraint(Sketcher.Constraint("Vertical", 6))
sketch9.addConstraint(Sketcher.Constraint("Horizontal", 7))
sketch9.addConstraint(Sketcher.Constraint("Symmetric", 1, 2, 4, 2, -1, 1))
sketch9.addConstraint(Sketcher.Constraint("Symmetric", 0, 2, 5, 2, -2))
sketch9.addConstraint(Sketcher.Constraint("Horizontal", 3, 2, 6, 2))
sketch9.addConstraint(Sketcher.Constraint("DistanceX", 1, 1, 1, 2, Q("2.75 in")))
sketch9.addConstraint(Sketcher.Constraint("DistanceY", 0, 1, 0, 2, Q("0.67 in")))
sketch9.addConstraint(Sketcher.Constraint("DistanceX", 4, 2, 0, 2, Q("22.5 in")))
sketch9.setExpression("Constraints[19]", "Params.sketch9_width")
sketch9.setExpression("Constraints[20]", "Params.sketch9_height")
pocket7 = body2.newObject("PartDesign::Pocket", "Pocket006")
pocket7.Profile = sketch9
pocket7.Type = "ThroughAll"
pocket7.Reversed = True
doc.recompute()

thickness = body2.newObject("PartDesign::Thickness", "Thickness")
thickness.Base = (pocket7, faces_at(pocket7, [(0, -53.975, -8.509)]))
thickness.setExpression("Value", "Params.thickness_wall")
thickness.Reversed = True
thickness.Join = "Intersection"

# Sketch on XY plane
sketch10 = body2.newObject("Sketcher::SketchObject", "Sketch009")
sketch10.AttachmentSupport = (doc.getObject("XY_Plane001"), [""])
sketch10.MapMode = "FlatFace"
sketch10.AttachmentOffset = App.Placement(Vector(0, 0, -0.67 * 25.4), App.Rotation())
add_polygon(sketch10, [(250.825, -38.735), (250.825, -53.975), (-250.825, -53.975), (-250.825, -38.735)])  # lines 0-3
sketch10.addConstraint(Sketcher.Constraint("Vertical", 0))
sketch10.addConstraint(Sketcher.Constraint("Horizontal", 1))
sketch10.addConstraint(Sketcher.Constraint("Vertical", 2))
sketch10.addConstraint(Sketcher.Constraint("Horizontal", 3))
sketch10.addConstraint(Sketcher.Constraint("DistanceY", 0, 2, 0, 1, Q("0.6 in")))
sketch10.addConstraint(Sketcher.Constraint("DistanceX", 1, 2, 1, 1, Q("19.75 in")))
sketch10.addConstraint(Sketcher.Constraint("DistanceX", -1, 1, 0, 2, Q("9.875 in")))
sketch10.addConstraint(Sketcher.Constraint("DistanceY", 0, 2, -1, 1, Q("2.125 in")))
sketch10.setExpression("Constraints[8]", "Params.sketch10_height")
sketch10.setExpression("Constraints[9]", "Params.sketch10_width")
pocket8 = body2.newObject("PartDesign::Pocket", "Pocket007")
pocket8.Profile = sketch10
pocket8.setExpression("Length", "Params.pocket8_length")
pocket8.Reversed = True
doc.recompute()

fillet2 = body2.newObject("PartDesign::Fillet", "Fillet001")
fillet2.Base = (pocket8, edges_at(pocket8, [(0, -35.115, 0)]))
fillet2.setExpression("Radius", "Params.fillet2_radius")

# Sketch on XZ plane
sketch11 = body2.newObject("Sketcher::SketchObject", "Sketch010")
sketch11.AttachmentSupport = (doc.getObject("XZ_Plane001"), [""])
sketch11.MapMode = "FlatFace"
sketch11.AttachmentOffset = App.Placement(Vector(0, 0, 1.3825 * 25.4), App.Rotation())
sketch11.addGeometry(Part.Circle(Vector(-244.475, -10.0965, 0), Vector(0, 0, 1), 3.175), False)
sketch11.addGeometry(Part.Circle(Vector(244.475, -10.0965, 0), Vector(0, 0, 1), 3.175), False)
sketch11.addConstraint(Sketcher.Constraint("Equal", 0, 1))
sketch11.addConstraint(Sketcher.Constraint("Symmetric", 0, 3, 1, 3, -2))
sketch11.addConstraint(Sketcher.Constraint("Diameter", 0, Q("0.25 in")))
sketch11.addConstraint(Sketcher.Constraint("DistanceX", 0, 3, 1, 3, Q("19.25 in")))
sketch11.addConstraint(Sketcher.Constraint("DistanceY", 0, 3, -1, 1, Q("0.3975 in")))
sketch11.setExpression("Constraints[2]", "Params.sketch11_diameter")
pocket9 = body2.newObject("PartDesign::Pocket", "Pocket008")
pocket9.Profile = sketch11
pocket9.setExpression("Length", "Params.pocket9_length")
pocket9.Reversed = True

doc.recompute()
